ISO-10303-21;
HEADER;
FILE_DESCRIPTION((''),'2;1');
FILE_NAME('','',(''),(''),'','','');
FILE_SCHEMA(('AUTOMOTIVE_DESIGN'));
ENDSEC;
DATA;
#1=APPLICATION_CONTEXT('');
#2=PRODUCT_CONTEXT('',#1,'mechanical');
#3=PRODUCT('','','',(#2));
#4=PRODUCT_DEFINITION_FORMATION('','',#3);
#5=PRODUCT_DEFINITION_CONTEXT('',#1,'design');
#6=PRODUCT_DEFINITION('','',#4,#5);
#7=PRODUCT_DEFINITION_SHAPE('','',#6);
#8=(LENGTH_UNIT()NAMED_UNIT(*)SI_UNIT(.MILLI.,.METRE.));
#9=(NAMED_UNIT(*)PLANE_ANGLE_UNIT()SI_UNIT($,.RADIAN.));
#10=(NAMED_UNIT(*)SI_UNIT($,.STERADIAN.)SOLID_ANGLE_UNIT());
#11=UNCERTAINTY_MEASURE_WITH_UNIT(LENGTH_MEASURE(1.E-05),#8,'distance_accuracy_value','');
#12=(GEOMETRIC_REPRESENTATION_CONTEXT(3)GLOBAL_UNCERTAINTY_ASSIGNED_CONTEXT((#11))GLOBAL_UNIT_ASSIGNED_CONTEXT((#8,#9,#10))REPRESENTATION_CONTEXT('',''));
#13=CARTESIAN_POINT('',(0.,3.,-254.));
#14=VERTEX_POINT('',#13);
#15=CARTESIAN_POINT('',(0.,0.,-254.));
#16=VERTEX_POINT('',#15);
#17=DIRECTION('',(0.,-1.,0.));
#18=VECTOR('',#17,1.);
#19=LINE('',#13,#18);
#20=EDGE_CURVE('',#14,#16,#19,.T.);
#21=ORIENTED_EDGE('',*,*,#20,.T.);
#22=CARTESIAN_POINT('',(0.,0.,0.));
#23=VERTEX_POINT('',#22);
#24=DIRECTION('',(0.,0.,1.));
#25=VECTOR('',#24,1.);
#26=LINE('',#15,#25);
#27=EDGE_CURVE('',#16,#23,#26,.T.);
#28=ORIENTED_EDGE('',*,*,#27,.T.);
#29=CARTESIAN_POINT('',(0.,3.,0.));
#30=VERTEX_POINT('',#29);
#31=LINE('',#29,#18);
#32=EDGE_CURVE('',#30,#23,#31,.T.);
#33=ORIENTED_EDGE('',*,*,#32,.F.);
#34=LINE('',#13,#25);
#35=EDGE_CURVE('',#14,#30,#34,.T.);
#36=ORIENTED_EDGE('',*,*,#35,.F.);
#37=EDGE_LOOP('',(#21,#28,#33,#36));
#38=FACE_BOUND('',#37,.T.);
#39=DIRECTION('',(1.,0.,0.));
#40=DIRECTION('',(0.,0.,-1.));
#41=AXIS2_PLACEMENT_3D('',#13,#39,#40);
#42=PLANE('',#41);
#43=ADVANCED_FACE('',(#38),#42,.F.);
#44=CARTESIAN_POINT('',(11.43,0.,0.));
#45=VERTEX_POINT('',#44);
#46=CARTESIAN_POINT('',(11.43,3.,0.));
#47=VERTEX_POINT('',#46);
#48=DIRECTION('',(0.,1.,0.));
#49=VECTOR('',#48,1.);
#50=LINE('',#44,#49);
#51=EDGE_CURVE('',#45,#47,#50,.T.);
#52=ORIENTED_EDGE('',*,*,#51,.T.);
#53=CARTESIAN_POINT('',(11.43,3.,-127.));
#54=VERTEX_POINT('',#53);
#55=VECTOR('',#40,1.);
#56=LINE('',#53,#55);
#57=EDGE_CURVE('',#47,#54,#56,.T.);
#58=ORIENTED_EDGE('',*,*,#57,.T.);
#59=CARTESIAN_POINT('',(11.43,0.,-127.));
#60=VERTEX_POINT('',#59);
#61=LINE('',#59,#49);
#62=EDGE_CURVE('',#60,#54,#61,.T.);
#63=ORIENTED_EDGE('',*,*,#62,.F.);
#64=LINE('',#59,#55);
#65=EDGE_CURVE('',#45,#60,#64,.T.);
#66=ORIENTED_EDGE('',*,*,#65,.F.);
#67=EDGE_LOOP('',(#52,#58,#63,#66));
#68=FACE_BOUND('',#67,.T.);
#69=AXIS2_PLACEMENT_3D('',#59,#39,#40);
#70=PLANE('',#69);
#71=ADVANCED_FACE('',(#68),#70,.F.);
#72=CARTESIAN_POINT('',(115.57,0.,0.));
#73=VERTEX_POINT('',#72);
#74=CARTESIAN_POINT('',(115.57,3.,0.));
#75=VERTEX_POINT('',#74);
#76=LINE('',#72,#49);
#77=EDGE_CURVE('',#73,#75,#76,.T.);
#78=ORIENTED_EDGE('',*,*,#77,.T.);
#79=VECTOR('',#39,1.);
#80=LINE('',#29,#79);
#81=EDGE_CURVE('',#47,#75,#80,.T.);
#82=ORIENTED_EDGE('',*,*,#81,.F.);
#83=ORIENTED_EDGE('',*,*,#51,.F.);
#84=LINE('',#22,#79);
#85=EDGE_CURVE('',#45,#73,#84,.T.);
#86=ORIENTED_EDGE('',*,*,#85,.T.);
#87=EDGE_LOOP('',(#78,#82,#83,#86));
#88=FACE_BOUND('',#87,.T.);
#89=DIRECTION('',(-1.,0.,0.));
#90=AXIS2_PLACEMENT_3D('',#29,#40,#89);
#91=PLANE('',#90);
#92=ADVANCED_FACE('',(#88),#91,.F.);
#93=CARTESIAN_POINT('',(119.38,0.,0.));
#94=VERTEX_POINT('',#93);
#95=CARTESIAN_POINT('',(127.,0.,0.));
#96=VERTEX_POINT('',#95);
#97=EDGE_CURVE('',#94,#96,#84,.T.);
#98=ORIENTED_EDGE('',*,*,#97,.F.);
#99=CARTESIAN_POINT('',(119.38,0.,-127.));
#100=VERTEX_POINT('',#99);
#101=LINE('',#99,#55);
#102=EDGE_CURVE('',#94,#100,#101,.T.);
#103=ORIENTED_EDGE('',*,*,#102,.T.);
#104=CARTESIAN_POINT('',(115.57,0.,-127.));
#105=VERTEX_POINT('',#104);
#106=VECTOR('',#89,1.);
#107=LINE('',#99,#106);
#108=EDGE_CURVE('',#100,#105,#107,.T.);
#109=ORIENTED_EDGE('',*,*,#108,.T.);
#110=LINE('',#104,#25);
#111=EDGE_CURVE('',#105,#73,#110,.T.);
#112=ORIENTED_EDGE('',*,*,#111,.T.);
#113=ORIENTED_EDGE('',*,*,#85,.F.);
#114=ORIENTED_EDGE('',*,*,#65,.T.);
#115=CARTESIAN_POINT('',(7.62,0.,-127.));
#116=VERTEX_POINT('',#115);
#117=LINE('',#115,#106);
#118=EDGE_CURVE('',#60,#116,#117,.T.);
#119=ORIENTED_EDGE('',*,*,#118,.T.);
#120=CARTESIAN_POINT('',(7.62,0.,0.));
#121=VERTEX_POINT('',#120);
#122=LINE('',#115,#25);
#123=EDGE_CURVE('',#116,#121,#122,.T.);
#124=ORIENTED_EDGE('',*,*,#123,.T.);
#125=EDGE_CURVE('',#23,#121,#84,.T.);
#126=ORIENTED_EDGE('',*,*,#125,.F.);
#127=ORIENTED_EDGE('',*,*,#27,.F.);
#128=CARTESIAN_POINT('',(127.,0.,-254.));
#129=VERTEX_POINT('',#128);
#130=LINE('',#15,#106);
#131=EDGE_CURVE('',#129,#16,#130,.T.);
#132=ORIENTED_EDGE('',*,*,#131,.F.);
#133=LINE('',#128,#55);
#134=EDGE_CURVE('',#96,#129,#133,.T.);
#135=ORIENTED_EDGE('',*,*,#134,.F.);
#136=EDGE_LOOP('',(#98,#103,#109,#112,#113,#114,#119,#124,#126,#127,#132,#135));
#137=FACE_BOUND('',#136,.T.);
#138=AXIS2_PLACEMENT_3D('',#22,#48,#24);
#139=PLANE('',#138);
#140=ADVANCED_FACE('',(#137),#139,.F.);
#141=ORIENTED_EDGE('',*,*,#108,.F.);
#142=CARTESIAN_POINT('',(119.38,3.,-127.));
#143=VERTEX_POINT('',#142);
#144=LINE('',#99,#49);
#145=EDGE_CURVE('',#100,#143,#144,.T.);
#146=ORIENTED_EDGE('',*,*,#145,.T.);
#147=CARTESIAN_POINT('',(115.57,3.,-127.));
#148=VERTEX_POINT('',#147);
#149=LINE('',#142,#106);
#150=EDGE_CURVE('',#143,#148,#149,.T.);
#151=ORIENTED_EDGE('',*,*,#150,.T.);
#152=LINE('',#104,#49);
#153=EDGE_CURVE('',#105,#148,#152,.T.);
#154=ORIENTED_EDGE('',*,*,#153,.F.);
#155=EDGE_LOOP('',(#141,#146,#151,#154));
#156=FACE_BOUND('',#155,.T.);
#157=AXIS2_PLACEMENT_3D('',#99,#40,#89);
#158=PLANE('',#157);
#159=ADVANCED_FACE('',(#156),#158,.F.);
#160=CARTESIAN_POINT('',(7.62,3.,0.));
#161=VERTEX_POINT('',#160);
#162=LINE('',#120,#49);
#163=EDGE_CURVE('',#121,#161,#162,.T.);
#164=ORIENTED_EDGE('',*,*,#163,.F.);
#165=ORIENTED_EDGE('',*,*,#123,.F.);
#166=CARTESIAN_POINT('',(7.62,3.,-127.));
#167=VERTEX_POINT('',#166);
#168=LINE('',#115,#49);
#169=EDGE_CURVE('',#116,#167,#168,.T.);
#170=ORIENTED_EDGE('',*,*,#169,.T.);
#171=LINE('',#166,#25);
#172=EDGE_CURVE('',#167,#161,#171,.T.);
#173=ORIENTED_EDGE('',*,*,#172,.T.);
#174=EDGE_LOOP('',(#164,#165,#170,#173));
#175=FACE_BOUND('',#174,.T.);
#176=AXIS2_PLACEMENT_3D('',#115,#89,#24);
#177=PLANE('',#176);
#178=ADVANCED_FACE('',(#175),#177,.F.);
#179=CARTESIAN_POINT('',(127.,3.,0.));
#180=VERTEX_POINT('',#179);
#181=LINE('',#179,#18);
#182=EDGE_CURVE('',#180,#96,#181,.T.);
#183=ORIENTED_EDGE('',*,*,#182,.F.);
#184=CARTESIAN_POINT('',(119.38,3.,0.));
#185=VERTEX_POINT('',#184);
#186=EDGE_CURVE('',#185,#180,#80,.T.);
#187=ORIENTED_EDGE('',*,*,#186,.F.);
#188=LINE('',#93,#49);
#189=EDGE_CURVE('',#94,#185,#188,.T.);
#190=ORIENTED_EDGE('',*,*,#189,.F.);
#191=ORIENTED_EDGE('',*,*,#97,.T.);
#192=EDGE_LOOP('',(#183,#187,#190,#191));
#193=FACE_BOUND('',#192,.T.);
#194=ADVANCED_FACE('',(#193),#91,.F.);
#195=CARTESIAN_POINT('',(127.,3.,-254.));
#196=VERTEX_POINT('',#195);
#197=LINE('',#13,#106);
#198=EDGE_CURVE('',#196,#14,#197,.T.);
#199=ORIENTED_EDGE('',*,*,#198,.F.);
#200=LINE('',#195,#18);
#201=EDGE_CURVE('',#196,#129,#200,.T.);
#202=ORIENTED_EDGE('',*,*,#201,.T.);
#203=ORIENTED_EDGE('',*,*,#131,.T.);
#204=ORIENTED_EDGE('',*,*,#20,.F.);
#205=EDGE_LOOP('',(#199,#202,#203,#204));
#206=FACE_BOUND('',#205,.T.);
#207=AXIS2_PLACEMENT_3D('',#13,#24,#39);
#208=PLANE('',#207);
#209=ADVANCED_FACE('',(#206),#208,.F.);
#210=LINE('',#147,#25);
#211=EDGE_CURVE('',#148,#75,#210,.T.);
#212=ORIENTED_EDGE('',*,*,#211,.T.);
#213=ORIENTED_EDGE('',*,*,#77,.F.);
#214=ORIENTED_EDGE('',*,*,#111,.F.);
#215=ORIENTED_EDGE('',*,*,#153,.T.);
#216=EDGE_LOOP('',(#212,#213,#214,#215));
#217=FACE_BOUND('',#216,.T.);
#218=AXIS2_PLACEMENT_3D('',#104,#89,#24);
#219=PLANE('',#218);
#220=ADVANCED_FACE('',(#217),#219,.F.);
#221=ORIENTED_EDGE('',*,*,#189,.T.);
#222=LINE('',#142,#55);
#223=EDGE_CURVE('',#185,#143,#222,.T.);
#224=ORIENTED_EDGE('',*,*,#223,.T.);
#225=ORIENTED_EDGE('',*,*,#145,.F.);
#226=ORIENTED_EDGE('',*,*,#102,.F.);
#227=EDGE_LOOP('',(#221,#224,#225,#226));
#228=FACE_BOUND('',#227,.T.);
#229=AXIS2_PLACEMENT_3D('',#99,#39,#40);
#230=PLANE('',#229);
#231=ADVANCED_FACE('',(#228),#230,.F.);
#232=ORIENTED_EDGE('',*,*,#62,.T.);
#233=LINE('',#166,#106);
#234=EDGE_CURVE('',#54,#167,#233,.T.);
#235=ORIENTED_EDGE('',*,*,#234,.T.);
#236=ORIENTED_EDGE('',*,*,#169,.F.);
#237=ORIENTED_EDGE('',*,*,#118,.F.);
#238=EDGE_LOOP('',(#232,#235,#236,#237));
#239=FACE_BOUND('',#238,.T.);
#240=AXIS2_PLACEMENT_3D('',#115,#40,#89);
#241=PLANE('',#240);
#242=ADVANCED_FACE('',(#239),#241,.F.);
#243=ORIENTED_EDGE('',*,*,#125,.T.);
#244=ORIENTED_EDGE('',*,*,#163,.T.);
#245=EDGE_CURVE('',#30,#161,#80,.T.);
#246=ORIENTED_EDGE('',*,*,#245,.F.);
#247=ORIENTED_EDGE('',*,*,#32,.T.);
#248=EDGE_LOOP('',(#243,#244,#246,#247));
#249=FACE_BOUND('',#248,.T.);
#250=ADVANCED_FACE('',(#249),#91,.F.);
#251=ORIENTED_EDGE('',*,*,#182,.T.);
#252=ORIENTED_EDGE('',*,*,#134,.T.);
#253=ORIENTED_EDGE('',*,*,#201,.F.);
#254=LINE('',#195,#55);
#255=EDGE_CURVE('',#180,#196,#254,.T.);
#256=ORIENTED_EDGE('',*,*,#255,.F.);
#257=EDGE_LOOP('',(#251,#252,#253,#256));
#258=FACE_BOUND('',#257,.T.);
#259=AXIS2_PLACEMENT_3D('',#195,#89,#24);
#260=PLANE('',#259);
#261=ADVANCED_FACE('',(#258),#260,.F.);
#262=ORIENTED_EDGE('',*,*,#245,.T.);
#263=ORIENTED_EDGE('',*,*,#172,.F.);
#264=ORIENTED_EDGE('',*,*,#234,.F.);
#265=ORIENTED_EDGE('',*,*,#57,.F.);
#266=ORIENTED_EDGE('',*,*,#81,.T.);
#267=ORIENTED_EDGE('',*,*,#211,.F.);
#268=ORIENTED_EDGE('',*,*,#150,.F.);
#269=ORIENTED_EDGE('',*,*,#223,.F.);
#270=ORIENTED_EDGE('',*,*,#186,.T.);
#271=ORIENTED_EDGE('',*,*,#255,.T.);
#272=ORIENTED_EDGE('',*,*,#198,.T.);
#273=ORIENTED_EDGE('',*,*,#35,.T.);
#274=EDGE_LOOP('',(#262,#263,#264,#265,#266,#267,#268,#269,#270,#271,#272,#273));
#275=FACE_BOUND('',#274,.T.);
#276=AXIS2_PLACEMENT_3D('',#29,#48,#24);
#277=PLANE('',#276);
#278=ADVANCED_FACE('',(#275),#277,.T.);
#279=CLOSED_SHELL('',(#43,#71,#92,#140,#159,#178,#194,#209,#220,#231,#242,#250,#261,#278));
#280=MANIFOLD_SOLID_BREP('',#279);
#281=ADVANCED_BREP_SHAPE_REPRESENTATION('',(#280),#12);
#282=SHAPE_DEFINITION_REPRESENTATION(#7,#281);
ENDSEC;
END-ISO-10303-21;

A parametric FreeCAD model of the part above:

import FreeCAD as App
import Part
import Sketcher
from FreeCAD import Vector
Q = App.Units.Quantity


def add_polygon(sketch, points):
    """Adds a closed chain of lines whose ends are joined by coincident constraints."""
    first, n = sketch.GeometryCount, len(points)
    for a, b in zip(points, points[1:] + points[:1]):
        sketch.addGeometry(Part.LineSegment(App.Vector(*a, 0), App.Vector(*b, 0)), False)
    for i in range(n):
        sketch.addConstraint(Sketcher.Constraint("Coincident", first + i, 2, first + (i + 1) % n, 1))

doc = App.newDocument("Part")
body = doc.addObject("PartDesign::Body", "Body")

sketch1 = doc.addObject("Sketcher::SketchObject", "Sketch")
body.addObject(sketch1)
sketch1.AttachmentSupport = (doc.XZ_Plane, [""])
sketch1.MapMode = "FlatFace"
add_polygon(sketch1, [(0, -254), (0, 0), (127, 0), (127, -254)])
sketch1.addConstraint(Sketcher.Constraint("Vertical", 0))
sketch1.addConstraint(Sketcher.Constraint("Horizontal", 1))
sketch1.addConstraint(Sketcher.Constraint("Vertical", 2))
sketch1.addConstraint(Sketcher.Constraint("Horizontal", 3))
sketch1.addConstraint(Sketcher.Constraint("Coincident", 0, 2, -1, 1))
sketch1.addConstraint(Sketcher.Constraint("DistanceX", 1, 1, 1, 2, Q("5 in")))
sketch1.addConstraint(Sketcher.Constraint("DistanceY", 0, 1, 0, 2, Q("10 in")))
pad1 = doc.addObject("PartDesign::Pad", "Pad")
body.addObject(pad1)
pad1.Profile = sketch1
pad1.Length = 3
pad1.Reversed = True

sketch2 = doc.addObject("Sketcher::SketchObject", "Sketch001")
body.addObject(sketch2)
sketch2.AttachmentSupport = (doc.XZ_Plane, [""])
sketch2.MapMode = "FlatFace"
sketch2.AttachmentOffset = App.Placement(Vector(0, 0, -3), App.Rotation())
add_polygon(sketch2, [(7.62, -127), (7.62, 0), (11.43, 0), (11.43, -127)])
add_polygon(sketch2, [(115.57, -127), (115.57, 0), (119.38, 0), (119.38, -127)])
sketch2.addConstraint(Sketcher.Constraint("Vertical", 0))
sketch2.addConstraint(Sketcher.Constraint("Horizontal", 1))
sketch2.addConstraint(Sketcher.Constraint("Vertical", 2))
sketch2.addConstraint(Sketcher.Constraint("Horizontal", 3))
sketch2.addConstraint(Sketcher.Constraint("Vertical", 4))
sketch2.addConstraint(Sketcher.Constraint("Horizontal", 5))
sketch2.addConstraint(Sketcher.Constraint("Vertical", 6))
sketch2.addConstraint(Sketcher.Constraint("Horizontal", 7))
sketch2.addConstraint(Sketcher.Constraint("PointOnObject", 0, 2, -1))
sketch2.addConstraint(Sketcher.Constraint("PointOnObject", 4, 2, -1))
sketch2.addConstraint(Sketcher.Constraint("Horizontal", 3, 2, 6, 2))
sketch2.addConstraint(Sketcher.Constraint("Equal", 3, 5))
sketch2.addConstraint(Sketcher.Constraint("DistanceY", 0, 1, 0, 2, Q("5 in")))
sketch2.addConstraint(Sketcher.Constraint("DistanceX", 1, 1, 1, 2, Q("0.15 in")))
sketch2.addConstraint(Sketcher.Constraint("DistanceX", -1, 1, 0, 2, Q("0.3 in")))
sketch2.addConstraint(Sketcher.Constraint("DistanceX", -1, 1, 5, 2, Q("4.7 in")))
pocket1 = doc.addObject("PartDesign::Pocket", "Pocket")
body.addObject(pocket1)
pocket1.Profile = sketch2
pocket1.Type = "ThroughAll"
pocket1.Reversed = True

doc.recompute()
